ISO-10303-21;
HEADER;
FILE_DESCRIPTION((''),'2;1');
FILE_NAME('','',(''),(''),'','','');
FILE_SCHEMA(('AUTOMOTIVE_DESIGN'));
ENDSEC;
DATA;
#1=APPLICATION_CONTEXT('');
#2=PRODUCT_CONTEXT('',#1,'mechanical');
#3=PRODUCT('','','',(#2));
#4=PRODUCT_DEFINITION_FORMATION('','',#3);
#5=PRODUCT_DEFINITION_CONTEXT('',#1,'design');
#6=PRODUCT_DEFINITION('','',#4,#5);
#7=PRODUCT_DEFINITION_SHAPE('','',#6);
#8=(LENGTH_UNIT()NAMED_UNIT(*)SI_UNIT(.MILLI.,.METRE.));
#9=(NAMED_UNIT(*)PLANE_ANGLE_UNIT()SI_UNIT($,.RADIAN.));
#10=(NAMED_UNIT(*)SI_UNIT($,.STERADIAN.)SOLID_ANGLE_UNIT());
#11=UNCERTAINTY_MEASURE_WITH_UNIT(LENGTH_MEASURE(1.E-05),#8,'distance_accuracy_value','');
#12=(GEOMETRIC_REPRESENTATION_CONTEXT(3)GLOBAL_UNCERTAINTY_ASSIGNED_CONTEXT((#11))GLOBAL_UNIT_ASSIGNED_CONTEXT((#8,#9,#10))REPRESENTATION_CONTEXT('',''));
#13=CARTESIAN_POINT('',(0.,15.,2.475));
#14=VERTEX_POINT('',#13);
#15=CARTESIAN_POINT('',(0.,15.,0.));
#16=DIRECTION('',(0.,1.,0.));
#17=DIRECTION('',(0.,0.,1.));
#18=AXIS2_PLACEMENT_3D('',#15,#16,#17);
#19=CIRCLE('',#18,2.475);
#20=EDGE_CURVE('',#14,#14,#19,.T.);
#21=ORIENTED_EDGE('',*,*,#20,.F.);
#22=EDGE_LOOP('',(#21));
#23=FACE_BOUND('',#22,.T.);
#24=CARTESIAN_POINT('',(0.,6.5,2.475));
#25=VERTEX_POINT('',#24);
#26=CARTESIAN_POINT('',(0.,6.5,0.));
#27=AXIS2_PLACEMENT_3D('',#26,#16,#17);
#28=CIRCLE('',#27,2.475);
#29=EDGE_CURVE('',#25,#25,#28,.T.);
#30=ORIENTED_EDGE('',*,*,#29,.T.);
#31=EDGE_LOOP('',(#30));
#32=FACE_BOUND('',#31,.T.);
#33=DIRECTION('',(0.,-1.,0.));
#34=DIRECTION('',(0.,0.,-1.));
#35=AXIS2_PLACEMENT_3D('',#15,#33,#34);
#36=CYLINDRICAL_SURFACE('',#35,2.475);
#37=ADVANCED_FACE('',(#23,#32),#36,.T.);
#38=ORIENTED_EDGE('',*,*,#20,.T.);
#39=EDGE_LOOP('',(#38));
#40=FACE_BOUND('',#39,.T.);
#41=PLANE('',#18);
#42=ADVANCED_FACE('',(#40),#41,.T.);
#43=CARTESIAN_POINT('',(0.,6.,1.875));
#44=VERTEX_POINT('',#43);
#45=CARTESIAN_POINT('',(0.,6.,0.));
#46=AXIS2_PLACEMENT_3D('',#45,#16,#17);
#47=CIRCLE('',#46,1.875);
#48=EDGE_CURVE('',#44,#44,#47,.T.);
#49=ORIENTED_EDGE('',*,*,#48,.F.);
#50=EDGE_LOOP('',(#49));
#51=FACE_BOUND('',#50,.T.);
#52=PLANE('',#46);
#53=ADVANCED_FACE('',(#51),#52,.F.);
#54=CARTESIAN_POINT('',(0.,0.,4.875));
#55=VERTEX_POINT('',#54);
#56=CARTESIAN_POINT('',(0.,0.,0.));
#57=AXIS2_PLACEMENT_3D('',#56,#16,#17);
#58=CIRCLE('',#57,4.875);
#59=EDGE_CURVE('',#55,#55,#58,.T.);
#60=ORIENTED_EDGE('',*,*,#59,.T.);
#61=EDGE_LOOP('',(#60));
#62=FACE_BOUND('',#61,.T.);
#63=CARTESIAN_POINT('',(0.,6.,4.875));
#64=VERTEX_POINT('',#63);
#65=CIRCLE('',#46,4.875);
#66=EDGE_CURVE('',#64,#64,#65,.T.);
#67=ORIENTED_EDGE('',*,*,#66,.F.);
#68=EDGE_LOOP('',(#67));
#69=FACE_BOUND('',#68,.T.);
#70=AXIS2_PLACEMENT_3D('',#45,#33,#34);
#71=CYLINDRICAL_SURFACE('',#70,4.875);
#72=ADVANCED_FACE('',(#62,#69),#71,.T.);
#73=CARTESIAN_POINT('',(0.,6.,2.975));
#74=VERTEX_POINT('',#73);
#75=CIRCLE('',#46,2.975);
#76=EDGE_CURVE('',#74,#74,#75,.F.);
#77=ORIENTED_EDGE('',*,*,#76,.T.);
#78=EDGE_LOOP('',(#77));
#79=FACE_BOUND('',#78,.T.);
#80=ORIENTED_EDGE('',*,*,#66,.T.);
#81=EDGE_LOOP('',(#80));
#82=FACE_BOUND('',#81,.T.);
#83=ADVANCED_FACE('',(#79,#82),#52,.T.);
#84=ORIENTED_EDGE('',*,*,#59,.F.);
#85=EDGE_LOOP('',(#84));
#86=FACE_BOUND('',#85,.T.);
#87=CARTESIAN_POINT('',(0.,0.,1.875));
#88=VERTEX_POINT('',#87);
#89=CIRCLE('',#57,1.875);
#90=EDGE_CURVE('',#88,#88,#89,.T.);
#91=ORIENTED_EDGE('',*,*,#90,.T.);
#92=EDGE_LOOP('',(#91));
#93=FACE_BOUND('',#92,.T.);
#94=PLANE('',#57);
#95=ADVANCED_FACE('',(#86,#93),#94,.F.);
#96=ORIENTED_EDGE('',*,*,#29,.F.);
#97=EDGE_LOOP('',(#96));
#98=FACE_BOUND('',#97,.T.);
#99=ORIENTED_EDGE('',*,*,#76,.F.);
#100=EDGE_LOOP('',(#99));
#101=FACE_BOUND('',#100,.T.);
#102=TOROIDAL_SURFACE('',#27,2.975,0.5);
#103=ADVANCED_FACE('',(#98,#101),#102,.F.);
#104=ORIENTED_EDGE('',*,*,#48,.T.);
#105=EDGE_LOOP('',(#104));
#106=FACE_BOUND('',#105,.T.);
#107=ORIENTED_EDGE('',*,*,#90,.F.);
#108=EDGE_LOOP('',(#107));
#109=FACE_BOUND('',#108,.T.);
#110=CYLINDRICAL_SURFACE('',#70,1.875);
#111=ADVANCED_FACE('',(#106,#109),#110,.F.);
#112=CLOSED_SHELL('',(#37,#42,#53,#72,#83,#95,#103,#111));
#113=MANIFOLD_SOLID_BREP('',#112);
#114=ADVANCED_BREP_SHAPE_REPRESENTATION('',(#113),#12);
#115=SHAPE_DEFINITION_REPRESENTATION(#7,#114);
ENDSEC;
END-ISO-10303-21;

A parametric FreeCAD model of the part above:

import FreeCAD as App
import Part
import Sketcher


def edges_at(feature, points):
    """Names of the edges that pass closest to the given points."""
    edges = feature.Shape.Edges
    near = lambda p: min(range(len(edges)), key=lambda i: edges[i].distToShape(Part.Vertex(*p))[0])
    return sorted({f"Edge{near(p) + 1}" for p in points})

doc = App.newDocument("Part")
params = doc.addObject("Spreadsheet::Sheet", "Params")
for row, (alias, value) in enumerate([
    ("sketch1_diameter", "9.75 mm"),
    ("sketch1_diameter2", "3.75 mm"),
    ("pad1_length", "6 mm"),
    ("sketch2_diameter", "4.95 mm"),
    ("pad2_length", "9 mm"),
    ("fillet_radius", "0.5 mm"),
], start=1):
    params.set(f"A{row}", alias)
    params.set(f"B{row}", "=" + value)
    params.setAlias(f"B{row}", alias)

body = doc.addObject("PartDesign::Body", "Body")

# Sketch on XZ plane
sketch1 = body.newObject("Sketcher::SketchObject", "Sketch")
sketch1.AttachmentSupport = (doc.getObject("XZ_Plane"), [""])
sketch1.MapMode = "FlatFace"
sketch1.addGeometry([
    Part.Circle(App.Vector(0, 0, 0), App.Vector(0, 0, 1), 4.9),
    Part.Circle(App.Vector(0, 0, 0), App.Vector(0, 0, 1), 1.9),
], False)
sketch1.addConstraint([
    Sketcher.Constraint("Coincident", 0, 3, -1, 1),
    Sketcher.Constraint("Coincident", 1, 3, -1, 1),
    Sketcher.Constraint("Diameter", 0, 9.75),
    Sketcher.Constraint("Diameter", 1, 3.75),
])
sketch1.setExpression("Constraints[2]", "Params.sketch1_diameter")
sketch1.setExpression("Constraints[3]", "Params.sketch1_diameter2")
pad1 = body.newObject("PartDesign::Pad", "Pad")
pad1.Profile = sketch1
pad1.setExpression("Length", "Params.pad1_length")
pad1.Reversed = True

# Sketch on XZ plane
sketch2 = body.newObject("Sketcher::SketchObject", "Sketch001")
sketch2.AttachmentSupport = (doc.getObject("XZ_Plane"), [""])
sketch2.MapMode = "FlatFace"
sketch2.AttachmentOffset = App.Placement(App.Vector(0, 0, -6), App.Rotation())
sketch2.addGeometry(Part.Circle(App.Vector(0, 0, 0), App.Vector(0, 0, 1), 2.5), False)
sketch2.addConstraint([
    Sketcher.Constraint("Coincident", 0, 3, -1, 1),
    Sketcher.Constraint("Diameter", 0, 4.95),
])
sketch2.setExpression("Constraints[1]", "Params.sketch2_diameter")
pad2 = body.newObject("PartDesign::Pad", "Pad001")
pad2.Profile = sketch2
pad2.setExpression("Length", "Params.pad2_length")
pad2.Reversed = True
doc.recompute()

fillet = body.newObject("PartDesign::Fillet", "Fillet")
fillet.Base = (pad2, edges_at(pad2, [(-2.475, 6, 0)]))
fillet.setExpression("Radius", "Params.fillet_radius")

doc.recompute()
